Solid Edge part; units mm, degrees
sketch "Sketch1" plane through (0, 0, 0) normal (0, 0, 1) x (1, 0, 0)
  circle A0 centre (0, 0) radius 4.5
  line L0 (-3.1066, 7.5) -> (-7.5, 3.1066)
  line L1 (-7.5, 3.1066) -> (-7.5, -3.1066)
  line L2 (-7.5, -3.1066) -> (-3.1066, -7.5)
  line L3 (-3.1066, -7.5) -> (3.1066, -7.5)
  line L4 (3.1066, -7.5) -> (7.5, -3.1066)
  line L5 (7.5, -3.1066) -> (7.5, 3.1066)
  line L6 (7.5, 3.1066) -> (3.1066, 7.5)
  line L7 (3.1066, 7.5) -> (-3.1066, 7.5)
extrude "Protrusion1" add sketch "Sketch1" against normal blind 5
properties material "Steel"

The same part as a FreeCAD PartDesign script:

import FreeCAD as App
import Part
import Sketcher


def add_polygon(sketch, points):
    """Adds a closed chain of lines whose ends are joined by coincident constraints."""
    first, n = sketch.GeometryCount, len(points)
    for a, b in zip(points, points[1:] + points[:1]):
        sketch.addGeometry(Part.LineSegment(App.Vector(*a, 0), App.Vector(*b, 0)), False)
    for i in range(n):
        sketch.addConstraint(Sketcher.Constraint("Coincident", first + i, 2, first + (i + 1) % n, 1))

doc = App.newDocument("Part")
body = doc.addObject("PartDesign::Body", "Body")

sketch1 = body.newObject("Sketcher::SketchObject", "Sketch")
sketch1.AttachmentSupport = (doc.getObject("XY_Plane"), [""])
sketch1.MapMode = "FlatFace"
add_polygon(sketch1, [(3.1066, 7.5), (-3.1066, 7.5), (-7.5, 3.1066), (-7.5, -3.1066), (-3.1066, -7.5), (3.1066, -7.5), (7.5, -3.1066), (7.5, 3.1066)])
sketch1.addGeometry(Part.Circle(App.Vector(0, 0, 0), App.Vector(0, 0, 1), 4.5), False)
sketch1.addConstraint(Sketcher.Constraint("Horizontal", 0))
sketch1.addConstraint(Sketcher.Constraint("Vertical", 2))
sketch1.addConstraint(Sketcher.Constraint("Horizontal", 4))
sketch1.addConstraint(Sketcher.Constraint("Vertical", 6))
sketch1.addConstraint(Sketcher.Constraint("Coincident", 8, 3, -1, 1))
sketch1.addConstraint(Sketcher.Constraint("Symmetric", 0, 2, 4, 2, -1, 1))
sketch1.addConstraint(Sketcher.Constraint("Symmetric", 1, 2, 5, 2, -1, 1))
sketch1.addConstraint(Sketcher.Constraint("Perpendicular", 1, 3))
sketch1.addConstraint(Sketcher.Constraint("Perpendicular", 5, 7))
sketch1.addConstraint(Sketcher.Constraint("Horizontal", 2, 2, 5, 2))
sketch1.addConstraint(Sketcher.Constraint("Horizontal", 1, 2, 6, 2))
sketch1.addConstraint(Sketcher.Constraint("Vertical", 0, 2, 3, 2))
sketch1.addConstraint(Sketcher.Constraint("Equal", 4, 2))
sketch1.addConstraint(Sketcher.Constraint("Diameter", 8, 9.0))
sketch1.addConstraint(Sketcher.Constraint("DistanceY", 3, 2, 0, 2, 15.0))
sketch1.addConstraint(Sketcher.Constraint("DistanceX", 0, 2, 0, 1, 6.2132))
pad1 = body.newObject("PartDesign::Pad", "Pad")
pad1.Profile = sketch1
pad1.Length = 5
pad1.Reversed = True

doc.recompute()
